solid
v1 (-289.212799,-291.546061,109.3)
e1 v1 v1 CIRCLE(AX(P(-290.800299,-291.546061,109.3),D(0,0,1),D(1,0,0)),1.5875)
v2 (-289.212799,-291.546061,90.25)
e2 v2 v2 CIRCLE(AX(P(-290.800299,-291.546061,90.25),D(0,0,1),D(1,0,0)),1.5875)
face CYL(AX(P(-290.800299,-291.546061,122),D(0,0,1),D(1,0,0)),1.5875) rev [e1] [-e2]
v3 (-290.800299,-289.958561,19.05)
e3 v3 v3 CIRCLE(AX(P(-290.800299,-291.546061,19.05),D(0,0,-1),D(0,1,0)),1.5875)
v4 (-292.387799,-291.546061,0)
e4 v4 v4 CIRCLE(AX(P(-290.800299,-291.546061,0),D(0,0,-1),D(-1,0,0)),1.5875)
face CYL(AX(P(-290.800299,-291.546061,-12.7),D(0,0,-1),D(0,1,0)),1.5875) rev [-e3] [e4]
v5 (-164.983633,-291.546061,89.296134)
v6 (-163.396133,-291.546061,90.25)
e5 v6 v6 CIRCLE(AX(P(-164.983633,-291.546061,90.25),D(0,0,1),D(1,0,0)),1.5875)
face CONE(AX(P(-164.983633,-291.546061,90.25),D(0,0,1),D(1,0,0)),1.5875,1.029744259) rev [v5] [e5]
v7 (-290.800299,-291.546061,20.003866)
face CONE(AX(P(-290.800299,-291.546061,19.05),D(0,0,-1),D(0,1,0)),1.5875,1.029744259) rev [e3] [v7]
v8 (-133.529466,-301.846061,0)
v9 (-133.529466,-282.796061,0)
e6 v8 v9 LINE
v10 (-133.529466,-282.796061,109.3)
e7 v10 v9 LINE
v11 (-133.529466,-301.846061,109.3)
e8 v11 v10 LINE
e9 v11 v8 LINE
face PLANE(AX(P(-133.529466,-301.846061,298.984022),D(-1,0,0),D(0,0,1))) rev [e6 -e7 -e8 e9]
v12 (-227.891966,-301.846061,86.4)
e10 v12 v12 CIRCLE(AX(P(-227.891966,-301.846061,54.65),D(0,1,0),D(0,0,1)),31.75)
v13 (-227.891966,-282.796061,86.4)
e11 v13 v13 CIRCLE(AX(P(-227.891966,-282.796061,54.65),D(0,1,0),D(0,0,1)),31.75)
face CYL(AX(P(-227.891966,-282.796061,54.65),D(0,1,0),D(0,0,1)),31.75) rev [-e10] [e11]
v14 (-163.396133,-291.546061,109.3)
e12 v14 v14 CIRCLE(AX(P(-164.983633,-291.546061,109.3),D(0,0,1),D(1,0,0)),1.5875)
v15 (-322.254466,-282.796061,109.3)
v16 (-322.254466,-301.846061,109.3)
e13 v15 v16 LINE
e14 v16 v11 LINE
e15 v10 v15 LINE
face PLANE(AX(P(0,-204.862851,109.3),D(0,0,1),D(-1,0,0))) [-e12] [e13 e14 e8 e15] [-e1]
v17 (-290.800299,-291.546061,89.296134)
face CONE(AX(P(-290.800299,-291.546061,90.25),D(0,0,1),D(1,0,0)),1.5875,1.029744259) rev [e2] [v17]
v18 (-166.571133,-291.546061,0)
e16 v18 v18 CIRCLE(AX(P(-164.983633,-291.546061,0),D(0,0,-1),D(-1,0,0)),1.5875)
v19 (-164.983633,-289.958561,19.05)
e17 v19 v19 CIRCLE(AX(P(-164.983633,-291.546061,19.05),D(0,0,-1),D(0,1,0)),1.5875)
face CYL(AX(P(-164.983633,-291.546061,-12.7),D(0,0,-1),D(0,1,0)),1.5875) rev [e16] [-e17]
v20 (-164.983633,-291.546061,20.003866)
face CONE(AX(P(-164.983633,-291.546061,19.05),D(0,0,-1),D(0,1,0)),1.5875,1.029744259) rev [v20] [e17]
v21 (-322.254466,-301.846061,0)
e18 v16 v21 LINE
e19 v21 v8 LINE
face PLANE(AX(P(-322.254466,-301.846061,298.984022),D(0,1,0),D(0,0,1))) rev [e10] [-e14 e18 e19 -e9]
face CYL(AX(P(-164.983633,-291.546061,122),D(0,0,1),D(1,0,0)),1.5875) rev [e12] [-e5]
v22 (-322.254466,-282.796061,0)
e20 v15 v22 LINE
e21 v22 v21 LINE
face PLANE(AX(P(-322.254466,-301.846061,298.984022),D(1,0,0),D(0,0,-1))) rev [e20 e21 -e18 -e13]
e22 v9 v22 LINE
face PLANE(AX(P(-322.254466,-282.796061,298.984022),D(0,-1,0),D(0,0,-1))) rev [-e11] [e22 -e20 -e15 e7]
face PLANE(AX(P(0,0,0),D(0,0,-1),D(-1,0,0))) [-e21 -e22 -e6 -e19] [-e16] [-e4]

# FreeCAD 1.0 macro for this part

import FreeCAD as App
import Part
import Sketcher
Q = App.Units.Quantity

doc = App.newDocument("Part")
body = doc.addObject("PartDesign::Body", "Body")

sketch1 = body.newObject("Sketcher::SketchObject", "Sketch")
sketch1.AttachmentSupport = (doc.getObject("XY_Plane"), [""])
sketch1.MapMode = "FlatFace"
sketch1.addGeometry([
    Part.LineSegment(App.Vector(-322, -283, 0), App.Vector(-322, -302, 0)),
    Part.LineSegment(App.Vector(-322, -302, 0), App.Vector(-134, -302, 0)),
    Part.LineSegment(App.Vector(-134, -302, 0), App.Vector(-134, -283, 0)),
    Part.LineSegment(App.Vector(-134, -283, 0), App.Vector(-322, -283, 0)),
], False)
sketch1.addConstraint([
    Sketcher.Constraint("Coincident", 0, 2, 1, 1),
    Sketcher.Constraint("Coincident", 1, 2, 2, 1),
    Sketcher.Constraint("Coincident", 2, 2, 3, 1),
    Sketcher.Constraint("Coincident", 3, 2, 0, 1),
    Sketcher.Constraint("Vertical", 0),
    Sketcher.Constraint("Horizontal", 1),
    Sketcher.Constraint("Vertical", 2),
    Sketcher.Constraint("Horizontal", 3),
    Sketcher.Constraint("DistanceY", 0, 2, 0, 1, Q("0.75 in")),
    Sketcher.Constraint("DistanceX", 1, 1, 1, 2, 188.725),
    Sketcher.Constraint("DistanceY", 0, 2, -1, 1, 301.846061),
    Sketcher.Constraint("DistanceX", 0, 2, -1, 1, 322.254466),
])
pad1 = body.newObject("PartDesign::Pad", "Pad")
pad1.Profile = sketch1
pad1.Length = 109.3

sketch2 = body.newObject("Sketcher::SketchObject", "Sketch001")
sketch2.AttachmentSupport = (doc.getObject("XY_Plane"), [""])
sketch2.MapMode = "FlatFace"
sketch2.AttachmentOffset = App.Placement(App.Vector(0, 0, -0.5 * 25.4), App.Rotation())
sketch2.addGeometry([
    Part.Circle(App.Vector(-10.4, -118.4, 0), App.Vector(0, 0, 1), 1.6),
    Part.Circle(App.Vector(-10.4, -13.5, 0), App.Vector(0, 0, 1), 1.6),
    Part.Circle(App.Vector(-218.6, -150.9, 0), App.Vector(0, 0, 1), 1.6),
    Part.Circle(App.Vector(-29.4, -150.9, 0), App.Vector(0, 0, 1), 1.6),
    Part.Circle(App.Vector(-124, -150.9, 0), App.Vector(0, 0, 1), 1.6),
    Part.Circle(App.Vector(-124, -182.7, 0), App.Vector(0, 0, 1), 1.6),
    Part.Circle(App.Vector(-124, -430.1, 0), App.Vector(0, 0, 1), 1.6),
    Part.Circle(App.Vector(-124, -291.5, 0), App.Vector(0, 0, 1), 1.6),
    Part.Circle(App.Vector(-83, -291.5, 0), App.Vector(0, 0, 1), 1.6),
    Part.Circle(App.Vector(42.8, -291.5, 0), App.Vector(0, 0, 1), 1.6),
    Part.Circle(App.Vector(83.8, -430.1, 0), App.Vector(0, 0, 1), 1.6),
    Part.Circle(App.Vector(83.8, -322.6, 0), App.Vector(0, 0, 1), 1.6),
    Part.Circle(App.Vector(83.8, -215.1, 0), App.Vector(0, 0, 1), 1.6),
    Part.Circle(App.Vector(83.8, -127, 0), App.Vector(0, 0, 1), 1.6),
    Part.Circle(App.Vector(83.8, 0, 0), App.Vector(0, 0, 1), 1.6),
    Part.Circle(App.Vector(-331.8, 0, 0), App.Vector(0, 0, 1), 1.6),
    Part.Circle(App.Vector(-331.8, -127, 0), App.Vector(0, 0, 1), 1.6),
    Part.Circle(App.Vector(-331.8, -215.1, 0), App.Vector(0, 0, 1), 1.6),
    Part.Circle(App.Vector(-331.8, -322.6, 0), App.Vector(0, 0, 1), 1.6),
    Part.Circle(App.Vector(-331.8, -430.1, 0), App.Vector(0, 0, 1), 1.6),
    Part.Circle(App.Vector(-290.8, -291.5, 0), App.Vector(0, 0, 1), 1.6),
    Part.Circle(App.Vector(-165, -291.5, 0), App.Vector(0, 0, 1), 1.6),
    Part.Circle(App.Vector(-237.7, -13.5, 0), App.Vector(0, 0, 1), 1.6),
    Part.Circle(App.Vector(-237.7, -118.4, 0), App.Vector(0, 0, 1), 1.6),
], False)
sketch2.addConstraint([
    Sketcher.Constraint("Equal", 0, 1),
    Sketcher.Constraint("Equal", 1, 2),
    Sketcher.Constraint("Equal", 2, 3),
    Sketcher.Constraint("Equal", 3, 4),
    Sketcher.Constraint("Equal", 4, 5),
    Sketcher.Constraint("Equal", 5, 6),
    Sketcher.Constraint("Equal", 6, 7),
    Sketcher.Constraint("Equal", 7, 8),
    Sketcher.Constraint("Equal", 8, 9),
    Sketcher.Constraint("Equal", 9, 10),
    Sketcher.Constraint("Equal", 10, 11),
    Sketcher.Constraint("Equal", 11, 12),
    Sketcher.Constraint("Equal", 12, 13),
    Sketcher.Constraint("Equal", 13, 14),
    Sketcher.Constraint("Equal", 14, 15),
    Sketcher.Constraint("Equal", 15, 16),
    Sketcher.Constraint("Equal", 16, 17),
    Sketcher.Constraint("Equal", 17, 18),
    Sketcher.Constraint("Equal", 18, 19),
    Sketcher.Constraint("Equal", 19, 20),
    Sketcher.Constraint("Equal", 20, 21),
    Sketcher.Constraint("Equal", 21, 22),
    Sketcher.Constraint("Equal", 22, 23),
    Sketcher.Constraint("PointOnObject", 14, 3, -1),
    Sketcher.Constraint("PointOnObject", 15, 3, -1),
    Sketcher.Constraint("Horizontal", 2, 3, 3, 3),
    Sketcher.Constraint("Horizontal", 3, 3, 4, 3),
    Sketcher.Constraint("Horizontal", 7, 3, 8, 3),
    Sketcher.Constraint("Horizontal", 8, 3, 9, 3),
    Sketcher.Constraint("Horizontal", 6, 3, 10, 3),
    Sketcher.Constraint("Horizontal", 13, 3, 16, 3),
    Sketcher.Constraint("Horizontal", 12, 3, 17, 3),
    Sketcher.Constraint("Horizontal", 11, 3, 18, 3),
    Sketcher.Constraint("Horizontal", 10, 3, 19, 3),
    Sketcher.Constraint("Horizontal", 9, 3, 20, 3),
    Sketcher.Constraint("Horizontal", 20, 3, 21, 3),
    Sketcher.Constraint("Horizontal", 1, 3, 22, 3),
    Sketcher.Constraint("Horizontal", 0, 3, 23, 3),
    Sketcher.Constraint("Vertical", 0, 3, 1, 3),
    Sketcher.Constraint("Vertical", 4, 3, 5, 3),
    Sketcher.Constraint("Vertical", 5, 3, 6, 3),
    Sketcher.Constraint("Vertical", 6, 3, 7, 3),
    Sketcher.Constraint("Vertical", 10, 3, 11, 3),
    Sketcher.Constraint("Vertical", 11, 3, 12, 3),
    Sketcher.Constraint("Vertical", 12, 3, 13, 3),
    Sketcher.Constraint("Vertical", 13, 3, 14, 3),
    Sketcher.Constraint("Vertical", 15, 3, 16, 3),
    Sketcher.Constraint("Vertical", 16, 3, 17, 3),
    Sketcher.Constraint("Vertical", 17, 3, 18, 3),
    Sketcher.Constraint("Vertical", 18, 3, 19, 3),
    Sketcher.Constraint("Vertical", 22, 3, 23, 3),
    Sketcher.Constraint("Diameter", 0, Q("0.125 in")),
    Sketcher.Constraint("DistanceY", 13, 3, -1, 1, Q("5 in")),
    Sketcher.Constraint("DistanceX", 3, 3, 0, 3, Q("0.75 in")),
    Sketcher.Constraint("DistanceY", 5, 3, 4, 3, Q("1.25 in")),
    Sketcher.Constraint("DistanceX", 22, 3, 2, 3, Q("0.75 in")),
    Sketcher.Constraint("DistanceY", 2, 3, -1, 1, 150.95),
    Sketcher.Constraint("DistanceX", 8, 3, -1, 1, 83.025299),
    Sketcher.Constraint("DistanceX", 20, 3, -1, 1, 290.800299),
    Sketcher.Constraint("DistanceX", 2, 3, 0, 3, 208.25),
    Sketcher.Constraint("DistanceX", 2, 3, 4, 3, 94.6),
    Sketcher.Constraint("DistanceX", 6, 3, 10, 3, 207.775),
    Sketcher.Constraint("DistanceX", 15, 3, 2, 3, 113.175),
    Sketcher.Constraint("DistanceY", 7, 3, -1, 1, 291.546061),
    Sketcher.Constraint("DistanceY", 11, 3, -1, 1, 322.59712),
    Sketcher.Constraint("DistanceY", 6, 3, 0, 3, 311.74616),
    Sketcher.Constraint("DistanceX", 0, 3, -1, 1, 10.354466),
    Sketcher.Constraint("DistanceY", 0, 3, -1, 1, 118.383333),
    Sketcher.Constraint("DistanceY", 1, 3, -1, 1, 13.516667),
    Sketcher.Constraint("DistanceX", -1, 1, 9, 3, 42.791367),
    Sketcher.Constraint("DistanceY", 12, 3, -1, 1, 215.064747),
    Sketcher.Constraint("DistanceX", 21, 3, -1, 1, 164.983633),
])
doc.recompute()
hole = body.newObject("PartDesign::Hole", "Hole")
hole.Profile = sketch2
hole.ThreadType = "None"
hole.Diameter = Q("0.125 in")
hole.DepthType = "Dimension"
hole.Depth = Q("1.25 in")
hole.DrillPoint = "Angled"
hole.DrillPointAngle = 118
hole.HoleCutType = "Countersink"
hole.HoleCutDiameter = Q("0.4 in")
hole.HoleCutCountersinkAngle = 82
hole.Reversed = True

sketch3 = body.newObject("Sketcher::SketchObject", "Sketch002")
sketch3.AttachmentSupport = (doc.getObject("XY_Plane"), [""])
sketch3.MapMode = "FlatFace"
sketch3.AttachmentOffset = App.Placement(App.Vector(0, 0, 122), App.Rotation())
sketch3.addGeometry([
    Part.Circle(App.Vector(-237.7, -118.4, 0), App.Vector(0, 0, 1), 1.6),
    Part.Circle(App.Vector(-237.7, -13.5, 0), App.Vector(0, 0, 1), 1.6),
    Part.Circle(App.Vector(-29.4, -150.9, 0), App.Vector(0, 0, 1), 1.6),
    Part.Circle(App.Vector(-218.6, -150.9, 0), App.Vector(0, 0, 1), 1.6),
    Part.Circle(App.Vector(-124, -150.9, 0), App.Vector(0, 0, 1), 1.6),
    Part.Circle(App.Vector(-124, -182.7, 0), App.Vector(0, 0, 1), 1.6),
    Part.Circle(App.Vector(-124, -430.1, 0), App.Vector(0, 0, 1), 1.6),
    Part.Circle(App.Vector(-124, -291.5, 0), App.Vector(0, 0, 1), 1.6),
    Part.Circle(App.Vector(-165, -291.5, 0), App.Vector(0, 0, 1), 1.6),
    Part.Circle(App.Vector(-290.8, -291.5, 0), App.Vector(0, 0, 1), 1.6),
    Part.Circle(App.Vector(-331.8, -430.1, 0), App.Vector(0, 0, 1), 1.6),
    Part.Circle(App.Vector(-331.8, -322.6, 0), App.Vector(0, 0, 1), 1.6),
    Part.Circle(App.Vector(-331.8, -215.1, 0), App.Vector(0, 0, 1), 1.6),
    Part.Circle(App.Vector(-331.8, -127, 0), App.Vector(0, 0, 1), 1.6),
    Part.Circle(App.Vector(-331.8, 0, 0), App.Vector(0, 0, 1), 1.6),
    Part.Circle(App.Vector(83.8, 0, 0), App.Vector(0, 0, 1), 1.6),
    Part.Circle(App.Vector(83.8, -127, 0), App.Vector(0, 0, 1), 1.6),
    Part.Circle(App.Vector(83.8, -215.1, 0), App.Vector(0, 0, 1), 1.6),
    Part.Circle(App.Vector(83.8, -322.6, 0), App.Vector(0, 0, 1), 1.6),
    Part.Circle(App.Vector(83.8, -430.1, 0), App.Vector(0, 0, 1), 1.6),
    Part.Circle(App.Vector(42.8, -291.5, 0), App.Vector(0, 0, 1), 1.6),
    Part.Circle(App.Vector(-83, -291.5, 0), App.Vector(0, 0, 1), 1.6),
    Part.Circle(App.Vector(-10.4, -13.5, 0), App.Vector(0, 0, 1), 1.6),
    Part.Circle(App.Vector(-10.4, -118.4, 0), App.Vector(0, 0, 1), 1.6),
], False)
sketch3.addConstraint([
    Sketcher.Constraint("Equal", 0, 1),
    Sketcher.Constraint("Equal", 1, 2),
    Sketcher.Constraint("Equal", 2, 3),
    Sketcher.Constraint("Equal", 3, 4),
    Sketcher.Constraint("Equal", 4, 5),
    Sketcher.Constraint("Equal", 5, 6),
    Sketcher.Constraint("Equal", 6, 7),
    Sketcher.Constraint("Equal", 7, 8),
    Sketcher.Constraint("Equal", 8, 9),
    Sketcher.Constraint("Equal", 9, 10),
    Sketcher.Constraint("Equal", 10, 11),
    Sketcher.Constraint("Equal", 11, 12),
    Sketcher.Constraint("Equal", 12, 13),
    Sketcher.Constraint("Equal", 13, 14),
    Sketcher.Constraint("Equal", 14, 15),
    Sketcher.Constraint("Equal", 15, 16),
    Sketcher.Constraint("Equal", 16, 17),
    Sketcher.Constraint("Equal", 17, 18),
    Sketcher.Constraint("Equal", 18, 19),
    Sketcher.Constraint("Equal", 19, 20),
    Sketcher.Constraint("Equal", 20, 21),
    Sketcher.Constraint("Equal", 21, 22),
    Sketcher.Constraint("Equal", 22, 23),
    Sketcher.Constraint("PointOnObject", 14, 3, -1),
    Sketcher.Constraint("PointOnObject", 15, 3, -1),
    Sketcher.Constraint("Horizontal", 2, 3, 3, 3),
    Sketcher.Constraint("Horizontal", 3, 3, 4, 3),
    Sketcher.Constraint("Horizontal", 7, 3, 8, 3),
    Sketcher.Constraint("Horizontal", 8, 3, 9, 3),
    Sketcher.Constraint("Horizontal", 6, 3, 10, 3),
    Sketcher.Constraint("Horizontal", 13, 3, 16, 3),
    Sketcher.Constraint("Horizontal", 12, 3, 17, 3),
    Sketcher.Constraint("Horizontal", 11, 3, 18, 3),
    Sketcher.Constraint("Horizontal", 10, 3, 19, 3),
    Sketcher.Constraint("Horizontal", 9, 3, 20, 3),
    Sketcher.Constraint("Horizontal", 20, 3, 21, 3),
    Sketcher.Constraint("Horizontal", 1, 3, 22, 3),
    Sketcher.Constraint("Horizontal", 0, 3, 23, 3),
    Sketcher.Constraint("Vertical", 0, 3, 1, 3),
    Sketcher.Constraint("Vertical", 4, 3, 5, 3),
    Sketcher.Constraint("Vertical", 5, 3, 6, 3),
    Sketcher.Constraint("Vertical", 6, 3, 7, 3),
    Sketcher.Constraint("Vertical", 10, 3, 11, 3),
    Sketcher.Constraint("Vertical", 11, 3, 12, 3),
    Sketcher.Constraint("Vertical", 12, 3, 13, 3),
    Sketcher.Constraint("Vertical", 13, 3, 14, 3),
    Sketcher.Constraint("Vertical", 15, 3, 16, 3),
    Sketcher.Constraint("Vertical", 16, 3, 17, 3),
    Sketcher.Constraint("Vertical", 17, 3, 18, 3),
    Sketcher.Constraint("Vertical", 18, 3, 19, 3),
    Sketcher.Constraint("Vertical", 22, 3, 23, 3),
    Sketcher.Constraint("Diameter", 0, Q("0.125 in")),
    Sketcher.Constraint("DistanceY", 13, 3, -1, 1, Q("5 in")),
    Sketcher.Constraint("DistanceX", 0, 3, 3, 3, Q("0.75 in")),
    Sketcher.Constraint("DistanceY", 5, 3, 4, 3, Q("1.25 in")),
    Sketcher.Constraint("DistanceX", 2, 3, 22, 3, Q("0.75 in")),
    Sketcher.Constraint("DistanceY", 2, 3, -1, 1, 150.95),
    Sketcher.Constraint("DistanceX", 9, 3, -1, 1, 290.800299),
    Sketcher.Constraint("DistanceX", 21, 3, -1, 1, 83.025299),
    Sketcher.Constraint("DistanceX", 0, 3, 2, 3, 208.25),
    Sketcher.Constraint("DistanceX", 4, 3, 2, 3, 94.6),
    Sketcher.Constraint("DistanceX", 10, 3, 6, 3, 207.775),
    Sketcher.Constraint("DistanceX", 2, 3, 15, 3, 113.175),
    Sketcher.Constraint("DistanceY", 7, 3, -1, 1, 291.546061),
    Sketcher.Constraint("DistanceY", 11, 3, -1, 1, 322.59712),
    Sketcher.Constraint("DistanceY", 6, 3, 0, 3, 311.74616),
    Sketcher.Constraint("DistanceX", 0, 3, -1, 1, 237.654466),
    Sketcher.Constraint("DistanceY", 0, 3, -1, 1, 118.383333),
    Sketcher.Constraint("DistanceY", 1, 3, -1, 1, 13.516667),
    Sketcher.Constraint("DistanceX", 8, 3, -1, 1, 164.983633),
    Sketcher.Constraint("DistanceY", 12, 3, -1, 1, 215.064747),
    Sketcher.Constraint("DistanceX", -1, 1, 20, 3, 42.791367),
])
doc.recompute()
hole2 = body.newObject("PartDesign::Hole", "Hole001")
hole2.Profile = sketch3
hole2.ThreadType = "None"
hole2.Diameter = Q("0.125 in")
hole2.DepthType = "Dimension"
hole2.Depth = Q("1.25 in")
hole2.DrillPoint = "Angled"
hole2.DrillPointAngle = 118
hole2.HoleCutType = "Countersink"
hole2.HoleCutDiameter = Q("0.4 in")
hole2.HoleCutCountersinkAngle = 82

sketch4 = body.newObject("Sketcher::SketchObject", "Sketch003")
sketch4.AttachmentSupport = (doc.getObject("XY_Plane"), [""])
sketch4.MapMode = "FlatFace"
sketch4.AttachmentOffset = App.Placement(App.Vector(0, 0, 122), App.Rotation())
sketch4.addGeometry([
    Part.Circle(App.Vector(83.8, -322.6, 0), App.Vector(0, 0, 1), 1.6),
    Part.Circle(App.Vector(83.8, -215.1, 0), App.Vector(0, 0, 1), 1.6),
    Part.Circle(App.Vector(83.8, -127, 0), App.Vector(0, 0, 1), 1.6),
    Part.Circle(App.Vector(48.2, 6.3, 0), App.Vector(0, 0, 1), 1.6),
    Part.Circle(App.Vector(22.1, 6.3, 0), App.Vector(0, 0, 1), 1.6),
    Part.Circle(App.Vector(-29.4, -150.9, 0), App.Vector(0, 0, 1), 1.6),
    Part.Circle(App.Vector(-124, -150.9, 0), App.Vector(0, 0, 1), 1.6),
    Part.Circle(App.Vector(-218.6, -150.9, 0), App.Vector(0, 0, 1), 1.6),
    Part.Circle(App.Vector(-270.1, 6.3, 0), App.Vector(0, 0, 1), 1.6),
    Part.Circle(App.Vector(-296.2, 6.3, 0), App.Vector(0, 0, 1), 1.6),
    Part.Circle(App.Vector(-331.8, -127, 0), App.Vector(0, 0, 1), 1.6),
    Part.Circle(App.Vector(-331.8, -215.1, 0), App.Vector(0, 0, 1), 1.6),
    Part.Circle(App.Vector(-331.8, -322.6, 0), App.Vector(0, 0, 1), 1.6),
    Part.Circle(App.Vector(-290.8, -291.5, 0), App.Vector(0, 0, 1), 1.6),
    Part.Circle(App.Vector(-165, -291.5, 0), App.Vector(0, 0, 1), 1.6),
    Part.Circle(App.Vector(-83, -291.5, 0), App.Vector(0, 0, 1), 1.6),
    Part.Circle(App.Vector(42.8, -291.5, 0), App.Vector(0, 0, 1), 1.6),
    Part.Circle(App.Vector(-124, -182.7, 0), App.Vector(0, 0, 1), 1.6),
    Part.Circle(App.Vector(-124, -291.5, 0), App.Vector(0, 0, 1), 1.6),
    Part.Circle(App.Vector(-124, -401.9, 0), App.Vector(0, 0, 1), 1.6),
    Part.Circle(App.Vector(2.3, -96.4, 0), App.Vector(0, 0, 1), 1.6),
    Part.Circle(App.Vector(2.3, -48.2, 0), App.Vector(0, 0, 1), 1.6),
    Part.Circle(App.Vector(-250.4, -48.2, 0), App.Vector(0, 0, 1), 1.6),
    Part.Circle(App.Vector(-250.4, -96.4, 0), App.Vector(0, 0, 1), 1.6),
], False)
sketch4.addConstraint([
    Sketcher.Constraint("Equal", 0, 1),
    Sketcher.Constraint("Equal", 1, 2),
    Sketcher.Constraint("Equal", 2, 3),
    Sketcher.Constraint("Equal", 3, 4),
    Sketcher.Constraint("Equal", 4, 5),
    Sketcher.Constraint("Equal", 5, 6),
    Sketcher.Constraint("Equal", 6, 7),
    Sketcher.Constraint("Equal", 7, 8),
    Sketcher.Constraint("Equal", 8, 9),
    Sketcher.Constraint("Equal", 9, 10),
    Sketcher.Constraint("Equal", 10, 11),
    Sketcher.Constraint("Equal", 11, 12),
    Sketcher.Constraint("Equal", 12, 13),
    Sketcher.Constraint("Equal", 13, 14),
    Sketcher.Constraint("Equal", 14, 15),
    Sketcher.Constraint("Equal", 15, 16),
    Sketcher.Constraint("Equal", 16, 17),
    Sketcher.Constraint("Equal", 17, 18),
    Sketcher.Constraint("Equal", 18, 19),
    Sketcher.Constraint("Equal", 19, 20),
    Sketcher.Constraint("Equal", 20, 21),
    Sketcher.Constraint("Equal", 21, 22),
    Sketcher.Constraint("Equal", 22, 23),
    Sketcher.Constraint("Horizontal", 3, 3, 4, 3),
    Sketcher.Constraint("Horizontal", 5, 3, 6, 3),
    Sketcher.Constraint("Horizontal", 6, 3, 7, 3),
    Sketcher.Constraint("Horizontal", 4, 3, 8, 3),
    Sketcher.Constraint("Horizontal", 8, 3, 9, 3),
    Sketcher.Constraint("Horizontal", 2, 3, 10, 3),
    Sketcher.Constraint("Horizontal", 1, 3, 11, 3),
    Sketcher.Constraint("Horizontal", 0, 3, 12, 3),
    Sketcher.Constraint("Horizontal", 13, 3, 14, 3),
    Sketcher.Constraint("Horizontal", 14, 3, 15, 3),
    Sketcher.Constraint("Horizontal", 15, 3, 16, 3),
    Sketcher.Constraint("Horizontal", 16, 3, 18, 3),
    Sketcher.Constraint("Horizontal", 21, 3, 22, 3),
    Sketcher.Constraint("Horizontal", 20, 3, 23, 3),
    Sketcher.Constraint("Vertical", 0, 3, 1, 3),
    Sketcher.Constraint("Vertical", 1, 3, 2, 3),
    Sketcher.Constraint("Vertical", 10, 3, 11, 3),
    Sketcher.Constraint("Vertical", 11, 3, 12, 3),
    Sketcher.Constraint("Vertical", 6, 3, 17, 3),
    Sketcher.Constraint("Vertical", 17, 3, 18, 3),
    Sketcher.Constraint("Vertical", 18, 3, 19, 3),
    Sketcher.Constraint("Vertical", 20, 3, 21, 3),
    Sketcher.Constraint("Vertical", 22, 3, 23, 3),
    Sketcher.Constraint("Diameter", 0, Q("0.125 in")),
    Sketcher.Constraint("DistanceY", 2, 3, -1, 1, Q("5 in")),
    Sketcher.Constraint("DistanceY", -1, 1, 3, 3, Q("0.25 in")),
    Sketcher.Constraint("DistanceY", 17, 3, 6, 3, Q("1.25 in")),
    Sketcher.Constraint("DistanceX", 5, 3, 20, 3, Q("1.25 in")),
    Sketcher.Constraint("DistanceX", 22, 3, 7, 3, Q("1.25 in")),
    Sketcher.Constraint("DistanceX", -1, 1, 3, 3, 48.162201),
    Sketcher.Constraint("DistanceY", 5, 3, -1, 1, 150.95),
    Sketcher.Constraint("DistanceX", 8, 3, -1, 1, 270.087799),
    Sketcher.Constraint("DistanceX", 13, 3, -1, 1, 290.800299),
    Sketcher.Constraint("DistanceX", 15, 3, -1, 1, 83.025299),
    Sketcher.Constraint("DistanceY", 20, 3, -1, 1, 96.4),
    Sketcher.Constraint("DistanceY", 21, 3, -1, 1, 48.2),
    Sketcher.Constraint("DistanceX", 5, 3, 2, 3, 113.175),
    Sketcher.Constraint("DistanceX", 6, 3, 5, 3, 94.6),
    Sketcher.Constraint("DistanceX", 7, 3, 6, 3, 94.6),
    Sketcher.Constraint("DistanceX", 9, 3, 4, 3, 318.25),
    Sketcher.Constraint("DistanceX", 10, 3, 7, 3, 113.175),
    Sketcher.Constraint("DistanceY", 0, 3, -1, 1, 322.59712),
    Sketcher.Constraint("DistanceY", 13, 3, -1, 1, 291.546061),
    Sketcher.Constraint("DistanceY", 19, 3, -1, 1, 401.942122),
    Sketcher.Constraint("DistanceX", -1, 1, 0, 3, 83.770534),
    Sketcher.Constraint("DistanceY", 1, 3, -1, 1, 215.064747),
    Sketcher.Constraint("DistanceX", -1, 1, 4, 3, 22.078867),
    Sketcher.Constraint("DistanceX", 14, 3, -1, 1, 164.983633),
    Sketcher.Constraint("DistanceX", -1, 1, 16, 3, 42.791367),
])
doc.recompute()
hole3 = body.newObject("PartDesign::Hole", "Hole002")
hole3.Profile = sketch4
hole3.ThreadType = "None"
hole3.Diameter = Q("0.125 in")
hole3.DepthType = "Dimension"
hole3.Depth = Q("1.25 in")
hole3.DrillPoint = "Angled"
hole3.DrillPointAngle = 118
hole3.HoleCutType = "Countersink"
hole3.HoleCutDiameter = Q("0.4 in")
hole3.HoleCutCountersinkAngle = 82

sketch5 = body.newObject("Sketcher::SketchObject", "Sketch004")
sketch5.AttachmentSupport = (doc.getObject("XZ_Plane"), [""])
sketch5.MapMode = "FlatFace"
sketch5.AttachmentOffset = App.Placement(App.Vector(0, 0, 282.796061), App.Rotation())
sketch5.addGeometry(Part.Circle(App.Vector(-228, 55, 0), App.Vector(0, 0, 1), 32), False)
sketch5.addConstraint([
    Sketcher.Constraint("Diameter", 0, Q("2.5 in")),
    Sketcher.Constraint("DistanceY", -1, 1, 0, 3, 54.65),
    Sketcher.Constraint("DistanceX", 0, 3, -1, 1, 227.891966),
])
doc.recompute()
hole4 = body.newObject("PartDesign::Hole", "Hole003")
hole4.Profile = sketch5
hole4.ThreadType = "None"
hole4.Diameter = Q("2.5 in")
hole4.DepthType = "Dimension"
hole4.Depth = Q("0.75 in")
hole4.DrillPoint = "Flat"
hole4.Reversed = True

doc.recompute()
